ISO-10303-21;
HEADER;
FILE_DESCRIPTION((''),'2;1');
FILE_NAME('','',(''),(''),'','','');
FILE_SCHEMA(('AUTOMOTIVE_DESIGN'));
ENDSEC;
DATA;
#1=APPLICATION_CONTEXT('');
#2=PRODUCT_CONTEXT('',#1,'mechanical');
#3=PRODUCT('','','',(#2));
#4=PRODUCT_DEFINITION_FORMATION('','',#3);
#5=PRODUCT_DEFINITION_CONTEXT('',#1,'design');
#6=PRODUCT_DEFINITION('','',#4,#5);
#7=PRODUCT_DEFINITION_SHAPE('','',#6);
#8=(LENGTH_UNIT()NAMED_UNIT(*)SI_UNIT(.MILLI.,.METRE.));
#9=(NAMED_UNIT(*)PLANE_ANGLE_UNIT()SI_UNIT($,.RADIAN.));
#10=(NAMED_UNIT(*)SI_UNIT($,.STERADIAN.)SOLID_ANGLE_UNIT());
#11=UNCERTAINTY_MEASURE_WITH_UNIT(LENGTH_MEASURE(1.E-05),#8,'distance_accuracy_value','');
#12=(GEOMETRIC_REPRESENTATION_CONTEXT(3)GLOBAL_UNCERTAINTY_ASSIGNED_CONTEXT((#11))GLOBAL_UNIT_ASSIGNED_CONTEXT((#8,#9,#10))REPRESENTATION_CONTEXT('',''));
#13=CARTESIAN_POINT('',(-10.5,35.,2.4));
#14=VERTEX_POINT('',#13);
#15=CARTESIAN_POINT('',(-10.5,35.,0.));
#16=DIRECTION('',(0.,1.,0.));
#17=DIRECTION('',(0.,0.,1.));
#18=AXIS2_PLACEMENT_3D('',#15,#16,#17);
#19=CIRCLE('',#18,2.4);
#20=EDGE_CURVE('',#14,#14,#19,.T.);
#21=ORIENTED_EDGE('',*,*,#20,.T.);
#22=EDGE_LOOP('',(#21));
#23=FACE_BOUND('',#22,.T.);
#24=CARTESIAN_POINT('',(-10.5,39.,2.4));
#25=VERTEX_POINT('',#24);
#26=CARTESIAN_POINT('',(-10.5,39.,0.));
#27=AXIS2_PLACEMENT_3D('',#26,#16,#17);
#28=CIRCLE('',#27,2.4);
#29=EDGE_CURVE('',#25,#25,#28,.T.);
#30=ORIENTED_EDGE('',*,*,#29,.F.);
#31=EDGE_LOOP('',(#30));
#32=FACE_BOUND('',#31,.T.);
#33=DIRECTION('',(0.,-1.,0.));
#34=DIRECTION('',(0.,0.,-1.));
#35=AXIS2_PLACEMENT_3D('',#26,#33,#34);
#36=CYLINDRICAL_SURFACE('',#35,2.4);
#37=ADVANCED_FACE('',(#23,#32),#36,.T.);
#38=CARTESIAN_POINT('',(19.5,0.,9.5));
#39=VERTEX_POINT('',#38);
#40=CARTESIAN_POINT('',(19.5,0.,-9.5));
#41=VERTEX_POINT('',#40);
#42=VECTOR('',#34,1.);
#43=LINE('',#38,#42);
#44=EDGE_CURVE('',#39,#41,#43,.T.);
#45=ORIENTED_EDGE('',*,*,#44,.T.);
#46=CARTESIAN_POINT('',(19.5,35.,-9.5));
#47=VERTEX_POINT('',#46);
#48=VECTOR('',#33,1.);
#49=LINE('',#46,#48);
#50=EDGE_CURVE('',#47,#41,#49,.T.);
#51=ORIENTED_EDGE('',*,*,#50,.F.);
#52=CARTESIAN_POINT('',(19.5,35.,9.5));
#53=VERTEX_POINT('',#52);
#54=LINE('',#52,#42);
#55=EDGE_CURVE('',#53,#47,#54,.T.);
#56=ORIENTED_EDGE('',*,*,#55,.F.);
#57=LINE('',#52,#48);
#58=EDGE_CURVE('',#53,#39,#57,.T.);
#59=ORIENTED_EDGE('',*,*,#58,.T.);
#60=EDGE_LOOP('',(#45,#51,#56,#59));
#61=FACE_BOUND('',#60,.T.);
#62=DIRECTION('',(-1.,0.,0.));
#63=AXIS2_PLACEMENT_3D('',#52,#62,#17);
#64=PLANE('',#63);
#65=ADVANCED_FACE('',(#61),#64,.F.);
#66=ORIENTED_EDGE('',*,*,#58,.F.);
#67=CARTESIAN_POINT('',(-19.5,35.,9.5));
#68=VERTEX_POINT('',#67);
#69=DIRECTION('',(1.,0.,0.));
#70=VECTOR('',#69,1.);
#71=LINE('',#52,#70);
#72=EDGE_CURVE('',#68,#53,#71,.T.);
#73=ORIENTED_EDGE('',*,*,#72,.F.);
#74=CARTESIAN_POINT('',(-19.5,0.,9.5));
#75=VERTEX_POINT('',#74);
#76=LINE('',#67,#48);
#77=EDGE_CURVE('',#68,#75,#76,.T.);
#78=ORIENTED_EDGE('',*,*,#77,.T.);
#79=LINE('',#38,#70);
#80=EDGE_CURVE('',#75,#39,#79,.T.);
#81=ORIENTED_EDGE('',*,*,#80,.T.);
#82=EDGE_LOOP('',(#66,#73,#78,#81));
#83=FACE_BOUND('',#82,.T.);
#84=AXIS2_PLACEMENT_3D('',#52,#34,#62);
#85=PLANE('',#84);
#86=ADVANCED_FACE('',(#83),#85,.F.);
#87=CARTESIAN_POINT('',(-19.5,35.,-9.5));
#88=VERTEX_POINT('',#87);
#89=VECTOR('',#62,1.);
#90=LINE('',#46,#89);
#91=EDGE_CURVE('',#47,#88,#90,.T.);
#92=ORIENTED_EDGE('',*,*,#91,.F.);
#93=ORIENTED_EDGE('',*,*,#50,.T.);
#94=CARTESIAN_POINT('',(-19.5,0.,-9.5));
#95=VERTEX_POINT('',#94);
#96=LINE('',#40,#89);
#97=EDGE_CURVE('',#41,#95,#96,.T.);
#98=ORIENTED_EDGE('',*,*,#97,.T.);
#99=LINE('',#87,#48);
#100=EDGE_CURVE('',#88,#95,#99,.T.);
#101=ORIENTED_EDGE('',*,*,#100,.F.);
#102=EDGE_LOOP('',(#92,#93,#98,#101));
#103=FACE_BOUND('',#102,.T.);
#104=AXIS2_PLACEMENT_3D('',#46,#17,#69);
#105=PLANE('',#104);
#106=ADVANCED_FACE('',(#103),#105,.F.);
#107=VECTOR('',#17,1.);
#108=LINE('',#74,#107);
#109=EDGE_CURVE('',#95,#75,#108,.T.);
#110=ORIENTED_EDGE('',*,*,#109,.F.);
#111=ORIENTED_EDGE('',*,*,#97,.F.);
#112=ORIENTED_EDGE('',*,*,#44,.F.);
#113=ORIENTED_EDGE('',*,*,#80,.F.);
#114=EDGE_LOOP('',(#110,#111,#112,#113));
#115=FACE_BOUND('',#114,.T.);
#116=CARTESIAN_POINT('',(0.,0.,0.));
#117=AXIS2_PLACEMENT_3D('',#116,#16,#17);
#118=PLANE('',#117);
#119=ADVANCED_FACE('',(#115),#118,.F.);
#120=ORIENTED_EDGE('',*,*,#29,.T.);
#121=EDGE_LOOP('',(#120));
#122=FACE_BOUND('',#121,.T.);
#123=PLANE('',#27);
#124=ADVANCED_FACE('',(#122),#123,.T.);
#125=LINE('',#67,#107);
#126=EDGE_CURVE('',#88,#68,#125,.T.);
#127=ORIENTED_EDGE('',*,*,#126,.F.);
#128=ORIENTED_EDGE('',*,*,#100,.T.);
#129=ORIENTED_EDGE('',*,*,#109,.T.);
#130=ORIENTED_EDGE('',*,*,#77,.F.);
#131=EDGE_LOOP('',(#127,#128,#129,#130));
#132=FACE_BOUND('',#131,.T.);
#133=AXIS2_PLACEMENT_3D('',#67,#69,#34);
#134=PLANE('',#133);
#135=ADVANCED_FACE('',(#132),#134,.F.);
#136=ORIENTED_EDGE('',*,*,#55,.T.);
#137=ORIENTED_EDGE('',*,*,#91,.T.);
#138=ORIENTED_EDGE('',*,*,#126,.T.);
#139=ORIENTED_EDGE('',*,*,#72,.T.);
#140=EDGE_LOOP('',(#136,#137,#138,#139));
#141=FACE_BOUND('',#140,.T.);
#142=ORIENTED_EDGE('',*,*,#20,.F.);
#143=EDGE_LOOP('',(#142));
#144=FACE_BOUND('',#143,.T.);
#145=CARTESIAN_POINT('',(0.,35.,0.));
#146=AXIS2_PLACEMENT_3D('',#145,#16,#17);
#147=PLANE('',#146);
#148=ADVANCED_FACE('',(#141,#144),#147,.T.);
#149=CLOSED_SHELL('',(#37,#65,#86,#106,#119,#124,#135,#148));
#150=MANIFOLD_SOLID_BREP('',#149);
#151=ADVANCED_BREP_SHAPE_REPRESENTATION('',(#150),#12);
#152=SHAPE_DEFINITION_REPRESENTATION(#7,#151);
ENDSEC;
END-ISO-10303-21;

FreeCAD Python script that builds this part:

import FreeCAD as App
import Part
import Sketcher

doc = App.newDocument("Part")
body = doc.addObject("PartDesign::Body", "Body")

# Sketch on XZ plane
sketch1 = body.newObject("Sketcher::SketchObject", "Sketch")
sketch1.AttachmentSupport = (doc.getObject("XZ_Plane"), [""])
sketch1.MapMode = "FlatFace"
sketch1.addGeometry(Part.LineSegment(App.Vector(-20, -10, 0), App.Vector(-20, 10, 0)), False)
sketch1.addGeometry(Part.LineSegment(App.Vector(-20, 10, 0), App.Vector(20, 10, 0)), False)
sketch1.addGeometry(Part.LineSegment(App.Vector(20, 10, 0), App.Vector(20, -10, 0)), False)
sketch1.addGeometry(Part.LineSegment(App.Vector(20, -10, 0), App.Vector(-20, -10, 0)), False)
sketch1.addConstraint(Sketcher.Constraint("Coincident", 0, 2, 1, 1))
sketch1.addConstraint(Sketcher.Constraint("Coincident", 1, 2, 2, 1))
sketch1.addConstraint(Sketcher.Constraint("Coincident", 2, 2, 3, 1))
sketch1.addConstraint(Sketcher.Constraint("Coincident", 3, 2, 0, 1))
sketch1.addConstraint(Sketcher.Constraint("Vertical", 0))
sketch1.addConstraint(Sketcher.Constraint("Horizontal", 1))
sketch1.addConstraint(Sketcher.Constraint("Vertical", 2))
sketch1.addConstraint(Sketcher.Constraint("Horizontal", 3))
sketch1.addConstraint(Sketcher.Constraint("Symmetric", 0, 2, 2, 2, -1, 1))
sketch1.addConstraint(Sketcher.Constraint("DistanceX", 1, 1, 1, 2, 39.0))
sketch1.addConstraint(Sketcher.Constraint("DistanceY", 0, 1, 0, 2, 19.0))
pad1 = body.newObject("PartDesign::Pad", "Pad")
pad1.Profile = sketch1
pad1.Length = 35
pad1.Reversed = True

# Sketch on XZ plane
sketch2 = body.newObject("Sketcher::SketchObject", "Sketch001")
sketch2.AttachmentSupport = (doc.getObject("XZ_Plane"), [""])
sketch2.MapMode = "FlatFace"
sketch2.AttachmentOffset = App.Placement(App.Vector(0, 0, -35), App.Rotation())
sketch2.addGeometry(Part.Circle(App.Vector(-10.5, 0, 0), App.Vector(0, 0, 1), 2.4), False)
sketch2.addConstraint(Sketcher.Constraint("PointOnObject", 0, 3, -1))
sketch2.addConstraint(Sketcher.Constraint("Diameter", 0, 4.8))
sketch2.addConstraint(Sketcher.Constraint("DistanceX", 0, 3, -1, 1, 10.5))
pad2 = body.newObject("PartDesign::Pad", "Pad001")
pad2.Profile = sketch2
pad2.Length = 4
pad2.Reversed = True

doc.recompute()
